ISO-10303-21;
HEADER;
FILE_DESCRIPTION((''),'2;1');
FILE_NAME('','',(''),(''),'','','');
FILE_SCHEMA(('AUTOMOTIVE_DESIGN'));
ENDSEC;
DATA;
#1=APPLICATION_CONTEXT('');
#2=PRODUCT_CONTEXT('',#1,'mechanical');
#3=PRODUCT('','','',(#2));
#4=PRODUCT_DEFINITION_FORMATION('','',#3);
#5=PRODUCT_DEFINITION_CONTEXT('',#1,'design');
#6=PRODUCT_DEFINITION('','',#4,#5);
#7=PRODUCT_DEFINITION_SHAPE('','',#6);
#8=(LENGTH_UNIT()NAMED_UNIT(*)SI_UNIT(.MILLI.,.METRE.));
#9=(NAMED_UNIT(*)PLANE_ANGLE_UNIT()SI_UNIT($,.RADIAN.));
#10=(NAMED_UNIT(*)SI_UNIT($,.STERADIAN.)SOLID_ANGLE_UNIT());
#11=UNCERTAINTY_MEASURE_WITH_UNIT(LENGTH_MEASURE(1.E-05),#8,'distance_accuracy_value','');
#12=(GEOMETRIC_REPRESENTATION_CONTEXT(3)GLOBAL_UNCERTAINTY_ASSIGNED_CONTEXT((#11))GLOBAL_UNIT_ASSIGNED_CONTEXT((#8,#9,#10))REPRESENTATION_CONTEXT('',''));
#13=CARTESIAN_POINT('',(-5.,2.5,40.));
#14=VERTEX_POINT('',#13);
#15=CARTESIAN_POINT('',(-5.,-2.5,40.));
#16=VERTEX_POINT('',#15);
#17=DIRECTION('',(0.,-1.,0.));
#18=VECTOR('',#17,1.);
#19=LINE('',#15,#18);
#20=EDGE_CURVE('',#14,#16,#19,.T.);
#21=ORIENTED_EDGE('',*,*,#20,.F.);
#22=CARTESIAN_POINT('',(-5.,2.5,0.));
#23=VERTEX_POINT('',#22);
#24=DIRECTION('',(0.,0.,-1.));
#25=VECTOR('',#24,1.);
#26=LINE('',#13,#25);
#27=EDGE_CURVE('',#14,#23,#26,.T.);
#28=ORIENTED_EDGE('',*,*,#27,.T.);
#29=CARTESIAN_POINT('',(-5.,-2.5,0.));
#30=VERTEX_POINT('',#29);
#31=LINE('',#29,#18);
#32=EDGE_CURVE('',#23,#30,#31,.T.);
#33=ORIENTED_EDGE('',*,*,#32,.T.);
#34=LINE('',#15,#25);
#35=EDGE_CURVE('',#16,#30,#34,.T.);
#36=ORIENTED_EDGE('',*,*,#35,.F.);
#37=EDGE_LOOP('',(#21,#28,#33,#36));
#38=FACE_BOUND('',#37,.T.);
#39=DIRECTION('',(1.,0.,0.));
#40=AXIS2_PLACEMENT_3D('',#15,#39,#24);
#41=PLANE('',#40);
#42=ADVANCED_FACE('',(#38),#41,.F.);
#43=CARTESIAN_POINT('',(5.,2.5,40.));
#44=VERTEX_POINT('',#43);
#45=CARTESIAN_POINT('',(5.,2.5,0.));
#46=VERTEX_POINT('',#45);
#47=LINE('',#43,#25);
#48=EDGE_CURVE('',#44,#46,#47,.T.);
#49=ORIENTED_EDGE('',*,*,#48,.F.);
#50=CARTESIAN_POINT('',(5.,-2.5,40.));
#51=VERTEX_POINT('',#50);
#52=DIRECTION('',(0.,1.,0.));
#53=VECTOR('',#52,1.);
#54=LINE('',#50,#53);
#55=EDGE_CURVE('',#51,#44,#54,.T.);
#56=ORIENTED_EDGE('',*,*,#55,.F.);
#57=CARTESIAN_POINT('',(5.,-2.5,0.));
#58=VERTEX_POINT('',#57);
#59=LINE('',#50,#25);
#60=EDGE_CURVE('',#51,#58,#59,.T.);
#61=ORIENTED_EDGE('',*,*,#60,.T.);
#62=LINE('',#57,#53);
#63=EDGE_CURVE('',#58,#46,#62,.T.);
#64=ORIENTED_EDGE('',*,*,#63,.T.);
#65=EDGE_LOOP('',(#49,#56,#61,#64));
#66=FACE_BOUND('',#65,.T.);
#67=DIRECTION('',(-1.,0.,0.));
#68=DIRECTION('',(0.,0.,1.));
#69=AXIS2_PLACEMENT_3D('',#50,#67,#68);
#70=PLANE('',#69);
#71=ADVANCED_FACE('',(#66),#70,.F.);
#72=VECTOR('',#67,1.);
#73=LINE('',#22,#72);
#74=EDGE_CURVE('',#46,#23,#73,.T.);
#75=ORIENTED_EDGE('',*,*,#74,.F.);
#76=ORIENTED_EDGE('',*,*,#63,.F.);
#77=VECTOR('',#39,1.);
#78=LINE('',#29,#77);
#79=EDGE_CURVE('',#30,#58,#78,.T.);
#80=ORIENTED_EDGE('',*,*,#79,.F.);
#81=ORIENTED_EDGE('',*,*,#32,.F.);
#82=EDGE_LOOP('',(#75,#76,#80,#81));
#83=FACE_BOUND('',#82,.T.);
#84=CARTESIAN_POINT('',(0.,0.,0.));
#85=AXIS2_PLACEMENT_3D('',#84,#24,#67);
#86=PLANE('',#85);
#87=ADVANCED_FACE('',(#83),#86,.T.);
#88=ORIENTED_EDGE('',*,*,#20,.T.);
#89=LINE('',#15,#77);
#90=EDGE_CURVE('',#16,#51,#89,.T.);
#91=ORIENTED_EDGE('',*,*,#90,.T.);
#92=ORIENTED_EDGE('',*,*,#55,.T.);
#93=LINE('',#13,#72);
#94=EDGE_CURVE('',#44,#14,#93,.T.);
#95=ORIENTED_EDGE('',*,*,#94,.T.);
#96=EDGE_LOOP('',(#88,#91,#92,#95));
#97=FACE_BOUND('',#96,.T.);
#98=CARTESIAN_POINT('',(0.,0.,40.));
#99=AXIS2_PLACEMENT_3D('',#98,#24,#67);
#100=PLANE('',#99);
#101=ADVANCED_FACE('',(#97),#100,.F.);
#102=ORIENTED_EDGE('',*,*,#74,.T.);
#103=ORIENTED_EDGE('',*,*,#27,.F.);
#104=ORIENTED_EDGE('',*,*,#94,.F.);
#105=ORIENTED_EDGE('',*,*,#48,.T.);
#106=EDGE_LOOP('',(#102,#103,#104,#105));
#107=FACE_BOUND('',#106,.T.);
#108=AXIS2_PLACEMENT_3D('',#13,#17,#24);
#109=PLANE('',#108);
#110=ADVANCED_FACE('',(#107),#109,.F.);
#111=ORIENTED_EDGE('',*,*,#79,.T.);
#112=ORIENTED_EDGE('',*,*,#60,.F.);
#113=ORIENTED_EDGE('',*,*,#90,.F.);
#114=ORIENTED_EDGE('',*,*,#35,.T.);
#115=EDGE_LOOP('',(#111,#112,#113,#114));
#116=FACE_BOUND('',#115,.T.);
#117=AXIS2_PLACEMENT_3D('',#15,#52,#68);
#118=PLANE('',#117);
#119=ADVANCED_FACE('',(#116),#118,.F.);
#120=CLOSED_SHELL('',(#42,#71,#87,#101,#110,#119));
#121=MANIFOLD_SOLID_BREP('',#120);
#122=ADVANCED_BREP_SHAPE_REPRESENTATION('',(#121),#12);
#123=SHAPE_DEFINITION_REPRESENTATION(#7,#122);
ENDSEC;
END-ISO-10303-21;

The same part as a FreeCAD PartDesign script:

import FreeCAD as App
import Part
import Sketcher
from FreeCAD import Vector


def add_polygon(sketch, points):
    """Adds a closed chain of lines whose ends are joined by coincident constraints."""
    first, n = sketch.GeometryCount, len(points)
    for a, b in zip(points, points[1:] + points[:1]):
        sketch.addGeometry(Part.LineSegment(App.Vector(*a, 0), App.Vector(*b, 0)), False)
    for i in range(n):
        sketch.addConstraint(Sketcher.Constraint("Coincident", first + i, 2, first + (i + 1) % n, 1))

doc = App.newDocument("Part")
params = doc.addObject("Spreadsheet::Sheet", "Params")
for row, (alias, value) in enumerate([
    ("sketch1_width", "10 mm"),
    ("sketch1_height", "5 mm"),
    ("pad1_length", "40 mm"),
], start=1):
    params.set(f"A{row}", alias)
    params.set(f"B{row}", "=" + value)
    params.setAlias(f"B{row}", alias)

body = doc.addObject("PartDesign::Body", "Body")

sketch1 = body.newObject("Sketcher::SketchObject", "Sketch")
sketch1.AttachmentSupport = (doc.getObject("XY_Plane"), [""])
sketch1.MapMode = "FlatFace"
add_polygon(sketch1, [(-5, 2.5), (-5, -2.5), (5, -2.5), (5, 2.5)])
sketch1.addConstraint([
    Sketcher.Constraint("Vertical", 0),
    Sketcher.Constraint("Horizontal", 1),
    Sketcher.Constraint("Vertical", 2),
    Sketcher.Constraint("Horizontal", 3),
    Sketcher.Constraint("Symmetric", 0, 2, 2, 2, -1, 1),
    Sketcher.Constraint("DistanceX", 1, 1, 1, 2, 10.0),
    Sketcher.Constraint("DistanceY", 0, 2, 0, 1, 5.0),
])
sketch1.setExpression("Constraints[9]", "Params.sketch1_width")
sketch1.setExpression("Constraints[10]", "Params.sketch1_height")
pad1 = body.newObject("PartDesign::Pad", "Pad")
pad1.Profile = sketch1
pad1.setExpression("Length", "Params.pad1_length")

doc.recompute()
